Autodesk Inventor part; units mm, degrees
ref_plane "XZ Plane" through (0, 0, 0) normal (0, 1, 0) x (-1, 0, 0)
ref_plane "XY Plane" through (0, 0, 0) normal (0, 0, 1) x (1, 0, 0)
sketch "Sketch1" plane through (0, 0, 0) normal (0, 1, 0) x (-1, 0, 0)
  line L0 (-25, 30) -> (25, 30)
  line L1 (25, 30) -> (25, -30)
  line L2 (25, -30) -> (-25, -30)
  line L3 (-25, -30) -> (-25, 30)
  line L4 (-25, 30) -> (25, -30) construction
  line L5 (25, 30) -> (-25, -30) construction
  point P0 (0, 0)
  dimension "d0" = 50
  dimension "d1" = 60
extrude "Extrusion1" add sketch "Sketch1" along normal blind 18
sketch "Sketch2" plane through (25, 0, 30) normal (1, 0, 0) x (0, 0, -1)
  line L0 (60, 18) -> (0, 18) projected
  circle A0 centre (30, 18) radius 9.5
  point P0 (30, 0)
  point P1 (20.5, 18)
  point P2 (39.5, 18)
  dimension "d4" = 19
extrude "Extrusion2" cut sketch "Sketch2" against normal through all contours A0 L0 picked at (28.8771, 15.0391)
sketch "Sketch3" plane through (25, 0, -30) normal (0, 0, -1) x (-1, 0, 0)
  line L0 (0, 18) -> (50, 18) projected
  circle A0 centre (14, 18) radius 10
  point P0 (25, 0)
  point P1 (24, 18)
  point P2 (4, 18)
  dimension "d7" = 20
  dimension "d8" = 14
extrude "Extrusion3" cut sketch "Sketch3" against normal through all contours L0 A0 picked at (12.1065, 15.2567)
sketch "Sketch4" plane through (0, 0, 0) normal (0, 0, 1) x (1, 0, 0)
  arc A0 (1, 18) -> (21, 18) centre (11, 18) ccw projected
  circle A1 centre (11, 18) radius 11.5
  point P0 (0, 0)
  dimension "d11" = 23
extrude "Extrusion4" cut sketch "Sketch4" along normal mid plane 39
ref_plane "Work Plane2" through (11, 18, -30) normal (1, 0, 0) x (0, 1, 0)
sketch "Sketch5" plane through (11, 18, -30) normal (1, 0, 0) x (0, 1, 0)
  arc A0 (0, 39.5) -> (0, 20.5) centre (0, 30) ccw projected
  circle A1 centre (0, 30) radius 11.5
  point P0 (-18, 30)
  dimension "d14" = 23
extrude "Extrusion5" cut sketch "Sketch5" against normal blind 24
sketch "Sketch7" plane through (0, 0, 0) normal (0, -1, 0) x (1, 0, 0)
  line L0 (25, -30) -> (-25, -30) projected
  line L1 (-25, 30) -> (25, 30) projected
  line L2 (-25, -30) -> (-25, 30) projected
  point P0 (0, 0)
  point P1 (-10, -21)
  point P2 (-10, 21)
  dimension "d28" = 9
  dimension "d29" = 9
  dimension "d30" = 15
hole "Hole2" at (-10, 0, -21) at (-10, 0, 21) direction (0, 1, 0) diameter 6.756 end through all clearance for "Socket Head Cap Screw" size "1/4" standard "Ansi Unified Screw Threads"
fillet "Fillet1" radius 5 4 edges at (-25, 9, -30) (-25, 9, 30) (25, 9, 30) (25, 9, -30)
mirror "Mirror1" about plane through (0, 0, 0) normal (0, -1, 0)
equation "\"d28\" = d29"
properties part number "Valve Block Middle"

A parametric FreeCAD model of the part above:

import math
import FreeCAD as App
import Part
import Sketcher


def edges_at(feature, points):
    """Names of the edges that pass closest to the given points."""
    edges = feature.Shape.Edges
    near = lambda p: min(range(len(edges)), key=lambda i: edges[i].distToShape(Part.Vertex(*p))[0])
    return sorted({f"Edge{near(p) + 1}" for p in points})

doc = App.newDocument("Part")
body = doc.addObject("PartDesign::Body", "Body")

# Sketch on XZ plane
sketch1 = body.newObject("Sketcher::SketchObject", "Sketch")
sketch1.AttachmentSupport = (doc.getObject("XZ_Plane"), [""])
sketch1.MapMode = "FlatFace"
sketch1.addGeometry(Part.LineSegment(App.Vector(-25, 30, 0), App.Vector(25, 30, 0)), False)
sketch1.addGeometry(Part.LineSegment(App.Vector(25, 30, 0), App.Vector(25, -30, 0)), False)
sketch1.addGeometry(Part.LineSegment(App.Vector(25, -30, 0), App.Vector(-25, -30, 0)), False)
sketch1.addGeometry(Part.LineSegment(App.Vector(-25, -30, 0), App.Vector(-25, 30, 0)), False)
sketch1.addConstraint(Sketcher.Constraint("Coincident", 0, 2, 1, 1))
sketch1.addConstraint(Sketcher.Constraint("Coincident", 1, 2, 2, 1))
sketch1.addConstraint(Sketcher.Constraint("Coincident", 2, 2, 3, 1))
sketch1.addConstraint(Sketcher.Constraint("Coincident", 3, 2, 0, 1))
sketch1.addConstraint(Sketcher.Constraint("Horizontal", 0))
sketch1.addConstraint(Sketcher.Constraint("Vertical", 1))
sketch1.addConstraint(Sketcher.Constraint("Horizontal", 2))
sketch1.addConstraint(Sketcher.Constraint("Vertical", 3))
sketch1.addConstraint(Sketcher.Constraint("Symmetric", 0, 2, 2, 2, -1, 1))
sketch1.addConstraint(Sketcher.Constraint("DistanceX", 0, 1, 0, 2, 50.0))
sketch1.addConstraint(Sketcher.Constraint("DistanceY", 1, 2, 1, 1, 60.0))
pad1 = body.newObject("PartDesign::Pad", "Pad")
pad1.Profile = sketch1
pad1.Length = 18
pad1.Reversed = True

# Sketch on YZ plane
sketch2 = body.newObject("Sketcher::SketchObject", "Sketch001")
sketch2.AttachmentSupport = (doc.getObject("YZ_Plane"), [""])
sketch2.MapMode = "FlatFace"
sketch2.AttachmentOffset = App.Placement(App.Vector(0, 0, 25), App.Rotation())
sketch2.addGeometry(Part.ArcOfCircle(Part.Circle(App.Vector(18, 0, 0), App.Vector(0, 0, 1), 10), math.radians(90), math.radians(270)), False)
sketch2.addGeometry(Part.LineSegment(App.Vector(18, -10, 0), App.Vector(18, 10, 0)), False)
sketch2.addConstraint(Sketcher.Constraint("Coincident", 0, 1, 1, 2))
sketch2.addConstraint(Sketcher.Constraint("Coincident", 1, 1, 0, 2))
sketch2.addConstraint(Sketcher.Constraint("Vertical", 1))
sketch2.addConstraint(Sketcher.Constraint("PointOnObject", 0, 3, -1))
sketch2.addConstraint(Sketcher.Constraint("Radius", 0, 9.5))
sketch2.addConstraint(Sketcher.Constraint("DistanceX", -1, 1, 0, 3, 18.0))
sketch2.addConstraint(Sketcher.Constraint("DistanceX", -1, 1, 0, 1, 18.0))
pocket1 = body.newObject("PartDesign::Pocket", "Pocket")
pocket1.Profile = sketch2
pocket1.Type = "ThroughAll"

# Sketch on XY plane
sketch3 = body.newObject("Sketcher::SketchObject", "Sketch002")
sketch3.AttachmentSupport = (doc.getObject("XY_Plane"), [""])
sketch3.MapMode = "FlatFace"
sketch3.AttachmentOffset = App.Placement(App.Vector(0, 0, -30), App.Rotation())
sketch3.addGeometry(Part.LineSegment(App.Vector(1, 18, 0), App.Vector(21, 18, 0)), False)
sketch3.addGeometry(Part.ArcOfCircle(Part.Circle(App.Vector(11, 18, 0), App.Vector(0, 0, 1), 10), math.radians(180), math.radians(360)), False)
sketch3.addConstraint(Sketcher.Constraint("Coincident", 0, 1, 1, 1))
sketch3.addConstraint(Sketcher.Constraint("Coincident", 1, 2, 0, 2))
sketch3.addConstraint(Sketcher.Constraint("Horizontal", 0))
sketch3.addConstraint(Sketcher.Constraint("Horizontal", 1, 3, 0, 1))
sketch3.addConstraint(Sketcher.Constraint("Radius", 1, 10.0))
sketch3.addConstraint(Sketcher.Constraint("DistanceX", -1, 1, 1, 3, 11.0))
sketch3.addConstraint(Sketcher.Constraint("DistanceY", -1, 1, 1, 3, 18.0))
pocket2 = body.newObject("PartDesign::Pocket", "Pocket001")
pocket2.Profile = sketch3
pocket2.Type = "ThroughAll"
pocket2.Reversed = True

# Sketch on XY plane
sketch4 = body.newObject("Sketcher::SketchObject", "Sketch003")
sketch4.AttachmentSupport = (doc.getObject("XY_Plane"), [""])
sketch4.MapMode = "FlatFace"
sketch4.addGeometry(Part.Circle(App.Vector(11, 18, 0), App.Vector(0, 0, 1), 12), False)
sketch4.addConstraint(Sketcher.Constraint("Diameter", 0, 23.0))
sketch4.addConstraint(Sketcher.Constraint("DistanceX", -1, 1, 0, 3, 11.0))
sketch4.addConstraint(Sketcher.Constraint("DistanceY", -1, 1, 0, 3, 18.0))
pocket3 = body.newObject("PartDesign::Pocket", "Pocket002")
pocket3.Profile = sketch4
pocket3.Length = 39
pocket3.Midplane = True

# Sketch on YZ plane
sketch5 = body.newObject("Sketcher::SketchObject", "Sketch004")
sketch5.AttachmentSupport = (doc.getObject("YZ_Plane"), [""])
sketch5.MapMode = "FlatFace"
sketch5.AttachmentOffset = App.Placement(App.Vector(0, 0, 11), App.Rotation())
sketch5.addGeometry(Part.Circle(App.Vector(18, 0, 0), App.Vector(0, 0, 1), 12), False)
sketch5.addConstraint(Sketcher.Constraint("PointOnObject", 0, 3, -1))
sketch5.addConstraint(Sketcher.Constraint("Diameter", 0, 23.0))
sketch5.addConstraint(Sketcher.Constraint("DistanceX", -1, 1, 0, 3, 18.0))
pocket4 = body.newObject("PartDesign::Pocket", "Pocket003")
pocket4.Profile = sketch5
pocket4.Length = 24

# Sketch on XZ plane
sketch6 = body.newObject("Sketcher::SketchObject", "Sketch005")
sketch6.AttachmentSupport = (doc.getObject("XZ_Plane"), [""])
sketch6.MapMode = "FlatFace"
sketch6.addGeometry(Part.Circle(App.Vector(-10, -21, 0), App.Vector(0, 0, 1), 3.4), False)
sketch6.addGeometry(Part.Circle(App.Vector(-10, 21, 0), App.Vector(0, 0, 1), 3.4), False)
sketch6.addConstraint(Sketcher.Constraint("Equal", 0, 1))
sketch6.addConstraint(Sketcher.Constraint("Symmetric", 0, 3, 1, 3, -1))
sketch6.addConstraint(Sketcher.Constraint("Diameter", 0, 6.756))
sketch6.addConstraint(Sketcher.Constraint("DistanceX", 0, 3, -1, 1, 10.0))
sketch6.addConstraint(Sketcher.Constraint("DistanceY", 0, 3, -1, 1, 21.0))
doc.recompute()
hole = body.newObject("PartDesign::Hole", "Hole")
hole.Profile = sketch6
hole.ThreadType = "None"
hole.Diameter = 6.756
hole.DepthType = "ThroughAll"
doc.recompute()

fillet = body.newObject("PartDesign::Fillet", "Fillet")
fillet.Base = (hole, edges_at(hole, [
    (-25, 9, -30),
    (-25, 9, 30),
    (25, 9, 30),
    (25, 9, -30),
]))
fillet.Radius = 5
doc.recompute()

mirrored = body.newObject("PartDesign::Mirrored", "Mirrored")
mirrored.TransformMode = "Transform body"
mirrored.MirrorPlane = (doc.getObject("XZ_Plane"), [""])
body.Tip = mirrored

doc.recompute()
